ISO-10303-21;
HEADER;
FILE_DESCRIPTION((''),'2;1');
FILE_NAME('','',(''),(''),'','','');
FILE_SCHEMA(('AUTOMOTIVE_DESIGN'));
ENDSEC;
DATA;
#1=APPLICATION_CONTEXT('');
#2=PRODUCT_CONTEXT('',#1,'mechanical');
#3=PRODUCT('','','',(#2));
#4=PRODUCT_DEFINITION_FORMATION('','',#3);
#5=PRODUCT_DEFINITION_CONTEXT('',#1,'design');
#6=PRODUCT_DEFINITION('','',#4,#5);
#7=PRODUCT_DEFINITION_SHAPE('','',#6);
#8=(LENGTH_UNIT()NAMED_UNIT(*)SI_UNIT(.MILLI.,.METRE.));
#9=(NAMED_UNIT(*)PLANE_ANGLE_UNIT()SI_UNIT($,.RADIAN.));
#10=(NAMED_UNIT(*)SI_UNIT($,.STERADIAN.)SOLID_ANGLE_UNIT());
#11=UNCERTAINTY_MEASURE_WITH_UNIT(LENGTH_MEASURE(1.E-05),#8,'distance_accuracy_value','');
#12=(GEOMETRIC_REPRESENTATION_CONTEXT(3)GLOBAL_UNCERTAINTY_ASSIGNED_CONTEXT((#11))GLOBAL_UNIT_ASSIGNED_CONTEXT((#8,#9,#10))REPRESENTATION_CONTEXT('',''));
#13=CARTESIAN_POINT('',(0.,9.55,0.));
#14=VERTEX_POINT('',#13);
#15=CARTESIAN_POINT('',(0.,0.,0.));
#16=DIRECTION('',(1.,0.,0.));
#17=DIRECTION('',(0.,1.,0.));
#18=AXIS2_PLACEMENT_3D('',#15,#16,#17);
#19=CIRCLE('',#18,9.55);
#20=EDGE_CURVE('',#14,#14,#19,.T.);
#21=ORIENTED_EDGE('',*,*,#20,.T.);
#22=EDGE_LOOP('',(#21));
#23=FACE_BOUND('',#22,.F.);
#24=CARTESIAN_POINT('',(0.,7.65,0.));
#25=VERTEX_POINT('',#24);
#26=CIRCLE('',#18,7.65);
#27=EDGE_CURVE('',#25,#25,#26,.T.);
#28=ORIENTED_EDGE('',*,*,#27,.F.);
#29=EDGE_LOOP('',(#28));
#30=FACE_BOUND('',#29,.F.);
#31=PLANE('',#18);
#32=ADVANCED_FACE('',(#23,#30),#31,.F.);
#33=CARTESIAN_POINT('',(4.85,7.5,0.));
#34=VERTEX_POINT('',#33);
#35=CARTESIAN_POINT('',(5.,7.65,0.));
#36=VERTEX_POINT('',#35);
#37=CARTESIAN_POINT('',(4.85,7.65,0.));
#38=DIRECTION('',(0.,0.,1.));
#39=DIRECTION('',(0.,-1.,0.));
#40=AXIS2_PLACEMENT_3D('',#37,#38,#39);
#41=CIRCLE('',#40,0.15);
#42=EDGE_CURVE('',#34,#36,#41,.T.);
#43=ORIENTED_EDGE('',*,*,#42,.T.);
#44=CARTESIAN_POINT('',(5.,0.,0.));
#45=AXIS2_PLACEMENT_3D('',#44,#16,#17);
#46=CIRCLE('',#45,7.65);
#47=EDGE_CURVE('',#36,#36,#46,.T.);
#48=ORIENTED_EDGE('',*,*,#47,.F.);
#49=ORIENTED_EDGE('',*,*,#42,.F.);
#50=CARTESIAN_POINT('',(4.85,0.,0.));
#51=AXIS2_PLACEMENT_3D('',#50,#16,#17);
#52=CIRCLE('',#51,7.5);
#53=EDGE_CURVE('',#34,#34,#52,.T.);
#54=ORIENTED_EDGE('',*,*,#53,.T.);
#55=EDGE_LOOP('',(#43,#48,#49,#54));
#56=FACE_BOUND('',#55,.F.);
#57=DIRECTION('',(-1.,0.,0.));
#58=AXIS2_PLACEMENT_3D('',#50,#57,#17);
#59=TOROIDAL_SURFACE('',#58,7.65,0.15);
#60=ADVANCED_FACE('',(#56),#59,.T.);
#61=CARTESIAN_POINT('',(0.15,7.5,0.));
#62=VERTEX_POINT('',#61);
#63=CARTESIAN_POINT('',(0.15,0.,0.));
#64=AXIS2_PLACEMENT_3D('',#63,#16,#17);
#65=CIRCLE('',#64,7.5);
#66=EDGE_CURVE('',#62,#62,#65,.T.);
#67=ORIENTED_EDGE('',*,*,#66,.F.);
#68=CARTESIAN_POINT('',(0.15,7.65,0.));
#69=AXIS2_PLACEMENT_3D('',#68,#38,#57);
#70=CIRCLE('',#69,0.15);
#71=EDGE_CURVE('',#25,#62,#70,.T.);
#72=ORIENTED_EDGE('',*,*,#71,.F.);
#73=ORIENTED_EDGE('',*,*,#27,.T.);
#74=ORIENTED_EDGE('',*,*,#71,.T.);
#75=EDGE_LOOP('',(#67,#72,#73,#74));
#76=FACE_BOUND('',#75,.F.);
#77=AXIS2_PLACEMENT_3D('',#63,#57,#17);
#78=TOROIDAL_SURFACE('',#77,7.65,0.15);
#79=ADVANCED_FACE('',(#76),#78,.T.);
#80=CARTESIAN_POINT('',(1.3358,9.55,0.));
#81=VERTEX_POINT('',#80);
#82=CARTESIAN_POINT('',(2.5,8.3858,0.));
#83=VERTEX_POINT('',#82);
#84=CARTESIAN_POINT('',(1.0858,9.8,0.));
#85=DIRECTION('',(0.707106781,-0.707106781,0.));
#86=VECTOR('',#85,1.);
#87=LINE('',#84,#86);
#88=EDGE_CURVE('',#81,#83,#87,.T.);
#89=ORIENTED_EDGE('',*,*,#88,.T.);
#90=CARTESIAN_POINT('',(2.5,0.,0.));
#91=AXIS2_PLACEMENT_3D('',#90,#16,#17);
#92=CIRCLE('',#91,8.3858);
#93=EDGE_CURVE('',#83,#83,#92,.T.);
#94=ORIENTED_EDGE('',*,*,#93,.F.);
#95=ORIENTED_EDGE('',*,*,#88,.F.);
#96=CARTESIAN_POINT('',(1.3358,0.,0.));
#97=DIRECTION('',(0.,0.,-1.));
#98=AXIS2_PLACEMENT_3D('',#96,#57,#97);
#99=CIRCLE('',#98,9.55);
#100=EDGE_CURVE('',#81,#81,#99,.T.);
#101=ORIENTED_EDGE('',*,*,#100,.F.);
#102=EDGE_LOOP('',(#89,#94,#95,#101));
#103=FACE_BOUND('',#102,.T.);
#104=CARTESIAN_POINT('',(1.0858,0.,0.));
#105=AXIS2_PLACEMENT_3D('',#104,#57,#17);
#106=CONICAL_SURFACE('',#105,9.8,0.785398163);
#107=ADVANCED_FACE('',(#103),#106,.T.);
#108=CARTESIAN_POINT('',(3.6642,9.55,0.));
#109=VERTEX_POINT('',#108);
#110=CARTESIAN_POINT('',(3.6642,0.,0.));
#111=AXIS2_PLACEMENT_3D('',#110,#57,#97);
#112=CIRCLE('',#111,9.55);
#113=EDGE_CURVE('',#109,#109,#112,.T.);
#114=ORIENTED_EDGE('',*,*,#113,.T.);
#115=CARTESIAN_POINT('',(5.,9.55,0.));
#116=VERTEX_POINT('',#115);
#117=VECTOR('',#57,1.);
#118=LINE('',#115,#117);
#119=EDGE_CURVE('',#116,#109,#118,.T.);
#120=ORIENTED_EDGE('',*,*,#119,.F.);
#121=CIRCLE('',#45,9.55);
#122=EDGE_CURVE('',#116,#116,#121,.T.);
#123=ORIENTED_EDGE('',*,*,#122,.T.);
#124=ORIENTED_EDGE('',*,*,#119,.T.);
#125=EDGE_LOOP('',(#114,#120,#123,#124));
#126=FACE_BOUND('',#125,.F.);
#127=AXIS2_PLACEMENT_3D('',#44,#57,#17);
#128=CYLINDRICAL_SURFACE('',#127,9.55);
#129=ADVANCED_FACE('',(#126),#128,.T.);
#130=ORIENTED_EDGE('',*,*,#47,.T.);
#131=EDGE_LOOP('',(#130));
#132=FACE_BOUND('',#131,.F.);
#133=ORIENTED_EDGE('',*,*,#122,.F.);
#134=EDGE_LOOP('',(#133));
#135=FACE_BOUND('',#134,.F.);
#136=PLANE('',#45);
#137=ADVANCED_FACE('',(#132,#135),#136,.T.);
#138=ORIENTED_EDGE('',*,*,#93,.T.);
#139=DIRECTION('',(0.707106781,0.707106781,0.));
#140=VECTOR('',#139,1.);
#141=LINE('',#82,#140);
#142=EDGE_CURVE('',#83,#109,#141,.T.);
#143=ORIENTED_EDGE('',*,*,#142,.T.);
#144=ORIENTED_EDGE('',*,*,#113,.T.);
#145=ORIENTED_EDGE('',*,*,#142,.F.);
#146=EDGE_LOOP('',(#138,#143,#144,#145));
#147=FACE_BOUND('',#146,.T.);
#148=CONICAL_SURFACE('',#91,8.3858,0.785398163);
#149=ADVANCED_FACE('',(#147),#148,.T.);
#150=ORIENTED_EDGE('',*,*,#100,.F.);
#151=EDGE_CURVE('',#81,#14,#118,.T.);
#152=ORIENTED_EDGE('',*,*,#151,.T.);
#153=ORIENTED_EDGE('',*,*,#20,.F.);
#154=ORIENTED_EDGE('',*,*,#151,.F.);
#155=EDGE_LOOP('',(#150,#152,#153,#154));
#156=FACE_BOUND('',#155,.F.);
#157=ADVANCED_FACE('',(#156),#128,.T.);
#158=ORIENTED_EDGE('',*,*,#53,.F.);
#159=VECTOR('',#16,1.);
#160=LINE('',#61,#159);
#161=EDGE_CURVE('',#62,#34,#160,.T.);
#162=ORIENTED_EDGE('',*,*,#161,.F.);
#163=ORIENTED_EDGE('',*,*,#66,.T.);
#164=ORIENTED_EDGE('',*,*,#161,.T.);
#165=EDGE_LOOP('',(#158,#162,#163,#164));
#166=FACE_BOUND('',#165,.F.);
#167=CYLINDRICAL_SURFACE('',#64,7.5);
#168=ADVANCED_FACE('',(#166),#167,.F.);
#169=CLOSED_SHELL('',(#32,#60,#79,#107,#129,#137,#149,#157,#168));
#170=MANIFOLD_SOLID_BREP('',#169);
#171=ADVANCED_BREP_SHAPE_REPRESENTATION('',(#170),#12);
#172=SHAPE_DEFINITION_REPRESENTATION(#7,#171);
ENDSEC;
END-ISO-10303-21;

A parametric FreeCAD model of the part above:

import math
import FreeCAD as App
import Part
import Sketcher

V = App.Vector
Q = App.Units.Quantity

doc = App.newDocument("Part")
body = doc.addObject("PartDesign::Body", "Body")

sketch1 = doc.addObject("Sketcher::SketchObject", "Sketch")
body.addObject(sketch1)
sketch1.AttachmentSupport = (doc.XY_Plane, [""])
sketch1.MapMode = "FlatFace"
sketch1.addGeometry(Part.LineSegment(V(0, 9.55, 0), V(0, 7.65, 0)), False)
sketch1.addGeometry(Part.ArcOfCircle(Part.Circle(V(0.15, 7.65, 0), V(0, 0, 1), 0.15), math.radians(180), math.radians(270)), False)
sketch1.addGeometry(Part.LineSegment(V(0.15, 7.5, 0), V(4.85, 7.5, 0)), False)
sketch1.addGeometry(Part.ArcOfCircle(Part.Circle(V(4.85, 7.65, 0), V(0, 0, 1), 0.15), math.radians(-90), math.radians(0)), False)
sketch1.addGeometry(Part.LineSegment(V(5, 7.65, 0), V(5, 9.55, 0)), False)
sketch1.addGeometry(Part.LineSegment(V(5, 9.55, 0), V(0, 9.55, 0)), False)
sketch1.addConstraint(Sketcher.Constraint("Tangent", 0, 2, 1, 1))
sketch1.addConstraint(Sketcher.Constraint("Tangent", 1, 2, 2, 1))
sketch1.addConstraint(Sketcher.Constraint("Tangent", 2, 2, 3, 1))
sketch1.addConstraint(Sketcher.Constraint("Tangent", 3, 2, 4, 1))
sketch1.addConstraint(Sketcher.Constraint("Coincident", 4, 2, 5, 1))
sketch1.addConstraint(Sketcher.Constraint("Coincident", 5, 2, 0, 1))
sketch1.addConstraint(Sketcher.Constraint("Vertical", 0))
sketch1.addConstraint(Sketcher.Constraint("Horizontal", 2))
sketch1.addConstraint(Sketcher.Constraint("Vertical", 4))
sketch1.addConstraint(Sketcher.Constraint("Horizontal", 5))
sketch1.addConstraint(Sketcher.Constraint("Equal", 1, 3))
sketch1.addConstraint(Sketcher.Constraint("PointOnObject", 0, 2, -2))
sketch1.addConstraint(Sketcher.Constraint("DistanceX", 5, 2, 5, 1, Q("5 mm")))
sketch1.addConstraint(Sketcher.Constraint("Radius", 1, Q("0.15 mm")))
sketch1.addConstraint(Sketcher.Constraint("DistanceY", 0, 2, 0, 1, Q("1.9 mm")))
sketch1.addConstraint(Sketcher.Constraint("DistanceY", -1, 1, 1, 2, Q("7.5 mm")))
revolution = doc.addObject("PartDesign::Revolution", "Revolution")
body.addObject(revolution)
revolution.Profile = sketch1
revolution.ReferenceAxis = (sketch1, ["H_Axis"])
revolution.Angle = 360

sketch2 = doc.addObject("Sketcher::SketchObject", "Sketch001")
body.addObject(sketch2)
sketch2.AttachmentSupport = (doc.XY_Plane, [""])
sketch2.MapMode = "FlatFace"
sketch2.addGeometry(Part.LineSegment(V(2.5, 11.2, 0), V(1.1, 9.8, 0)), False)
sketch2.addGeometry(Part.LineSegment(V(1.1, 9.8, 0), V(2.5, 8.4, 0)), False)
sketch2.addGeometry(Part.LineSegment(V(2.5, 8.4, 0), V(3.9, 9.8, 0)), False)
sketch2.addGeometry(Part.LineSegment(V(3.9, 9.8, 0), V(2.5, 11.2, 0)), False)
sketch2.addConstraint(Sketcher.Constraint("Coincident", 0, 2, 1, 1))
sketch2.addConstraint(Sketcher.Constraint("Coincident", 1, 2, 2, 1))
sketch2.addConstraint(Sketcher.Constraint("Coincident", 2, 2, 3, 1))
sketch2.addConstraint(Sketcher.Constraint("Coincident", 3, 2, 0, 1))
sketch2.addConstraint(Sketcher.Constraint("Perpendicular", 0, 1))
sketch2.addConstraint(Sketcher.Constraint("Perpendicular", 1, 2))
sketch2.addConstraint(Sketcher.Constraint("Perpendicular", 2, 3))
sketch2.addConstraint(Sketcher.Constraint("Horizontal", 0, 2, 2, 2))
sketch2.addConstraint(Sketcher.Constraint("Vertical", 1, 2, 3, 2))
sketch2.addConstraint(Sketcher.Constraint("Distance", 0, Q("2 mm")))
sketch2.addConstraint(Sketcher.Constraint("DistanceY", -1, 1, 0, 2, Q("9.8 mm")))
sketch2.addConstraint(Sketcher.Constraint("DistanceX", -1, 1, 1, 2, Q("2.5 mm")))
groove = doc.addObject("PartDesign::Groove", "Groove")
body.addObject(groove)
groove.Profile = sketch2
groove.ReferenceAxis = (sketch2, ["H_Axis"])
groove.Angle = 360

doc.recompute()
